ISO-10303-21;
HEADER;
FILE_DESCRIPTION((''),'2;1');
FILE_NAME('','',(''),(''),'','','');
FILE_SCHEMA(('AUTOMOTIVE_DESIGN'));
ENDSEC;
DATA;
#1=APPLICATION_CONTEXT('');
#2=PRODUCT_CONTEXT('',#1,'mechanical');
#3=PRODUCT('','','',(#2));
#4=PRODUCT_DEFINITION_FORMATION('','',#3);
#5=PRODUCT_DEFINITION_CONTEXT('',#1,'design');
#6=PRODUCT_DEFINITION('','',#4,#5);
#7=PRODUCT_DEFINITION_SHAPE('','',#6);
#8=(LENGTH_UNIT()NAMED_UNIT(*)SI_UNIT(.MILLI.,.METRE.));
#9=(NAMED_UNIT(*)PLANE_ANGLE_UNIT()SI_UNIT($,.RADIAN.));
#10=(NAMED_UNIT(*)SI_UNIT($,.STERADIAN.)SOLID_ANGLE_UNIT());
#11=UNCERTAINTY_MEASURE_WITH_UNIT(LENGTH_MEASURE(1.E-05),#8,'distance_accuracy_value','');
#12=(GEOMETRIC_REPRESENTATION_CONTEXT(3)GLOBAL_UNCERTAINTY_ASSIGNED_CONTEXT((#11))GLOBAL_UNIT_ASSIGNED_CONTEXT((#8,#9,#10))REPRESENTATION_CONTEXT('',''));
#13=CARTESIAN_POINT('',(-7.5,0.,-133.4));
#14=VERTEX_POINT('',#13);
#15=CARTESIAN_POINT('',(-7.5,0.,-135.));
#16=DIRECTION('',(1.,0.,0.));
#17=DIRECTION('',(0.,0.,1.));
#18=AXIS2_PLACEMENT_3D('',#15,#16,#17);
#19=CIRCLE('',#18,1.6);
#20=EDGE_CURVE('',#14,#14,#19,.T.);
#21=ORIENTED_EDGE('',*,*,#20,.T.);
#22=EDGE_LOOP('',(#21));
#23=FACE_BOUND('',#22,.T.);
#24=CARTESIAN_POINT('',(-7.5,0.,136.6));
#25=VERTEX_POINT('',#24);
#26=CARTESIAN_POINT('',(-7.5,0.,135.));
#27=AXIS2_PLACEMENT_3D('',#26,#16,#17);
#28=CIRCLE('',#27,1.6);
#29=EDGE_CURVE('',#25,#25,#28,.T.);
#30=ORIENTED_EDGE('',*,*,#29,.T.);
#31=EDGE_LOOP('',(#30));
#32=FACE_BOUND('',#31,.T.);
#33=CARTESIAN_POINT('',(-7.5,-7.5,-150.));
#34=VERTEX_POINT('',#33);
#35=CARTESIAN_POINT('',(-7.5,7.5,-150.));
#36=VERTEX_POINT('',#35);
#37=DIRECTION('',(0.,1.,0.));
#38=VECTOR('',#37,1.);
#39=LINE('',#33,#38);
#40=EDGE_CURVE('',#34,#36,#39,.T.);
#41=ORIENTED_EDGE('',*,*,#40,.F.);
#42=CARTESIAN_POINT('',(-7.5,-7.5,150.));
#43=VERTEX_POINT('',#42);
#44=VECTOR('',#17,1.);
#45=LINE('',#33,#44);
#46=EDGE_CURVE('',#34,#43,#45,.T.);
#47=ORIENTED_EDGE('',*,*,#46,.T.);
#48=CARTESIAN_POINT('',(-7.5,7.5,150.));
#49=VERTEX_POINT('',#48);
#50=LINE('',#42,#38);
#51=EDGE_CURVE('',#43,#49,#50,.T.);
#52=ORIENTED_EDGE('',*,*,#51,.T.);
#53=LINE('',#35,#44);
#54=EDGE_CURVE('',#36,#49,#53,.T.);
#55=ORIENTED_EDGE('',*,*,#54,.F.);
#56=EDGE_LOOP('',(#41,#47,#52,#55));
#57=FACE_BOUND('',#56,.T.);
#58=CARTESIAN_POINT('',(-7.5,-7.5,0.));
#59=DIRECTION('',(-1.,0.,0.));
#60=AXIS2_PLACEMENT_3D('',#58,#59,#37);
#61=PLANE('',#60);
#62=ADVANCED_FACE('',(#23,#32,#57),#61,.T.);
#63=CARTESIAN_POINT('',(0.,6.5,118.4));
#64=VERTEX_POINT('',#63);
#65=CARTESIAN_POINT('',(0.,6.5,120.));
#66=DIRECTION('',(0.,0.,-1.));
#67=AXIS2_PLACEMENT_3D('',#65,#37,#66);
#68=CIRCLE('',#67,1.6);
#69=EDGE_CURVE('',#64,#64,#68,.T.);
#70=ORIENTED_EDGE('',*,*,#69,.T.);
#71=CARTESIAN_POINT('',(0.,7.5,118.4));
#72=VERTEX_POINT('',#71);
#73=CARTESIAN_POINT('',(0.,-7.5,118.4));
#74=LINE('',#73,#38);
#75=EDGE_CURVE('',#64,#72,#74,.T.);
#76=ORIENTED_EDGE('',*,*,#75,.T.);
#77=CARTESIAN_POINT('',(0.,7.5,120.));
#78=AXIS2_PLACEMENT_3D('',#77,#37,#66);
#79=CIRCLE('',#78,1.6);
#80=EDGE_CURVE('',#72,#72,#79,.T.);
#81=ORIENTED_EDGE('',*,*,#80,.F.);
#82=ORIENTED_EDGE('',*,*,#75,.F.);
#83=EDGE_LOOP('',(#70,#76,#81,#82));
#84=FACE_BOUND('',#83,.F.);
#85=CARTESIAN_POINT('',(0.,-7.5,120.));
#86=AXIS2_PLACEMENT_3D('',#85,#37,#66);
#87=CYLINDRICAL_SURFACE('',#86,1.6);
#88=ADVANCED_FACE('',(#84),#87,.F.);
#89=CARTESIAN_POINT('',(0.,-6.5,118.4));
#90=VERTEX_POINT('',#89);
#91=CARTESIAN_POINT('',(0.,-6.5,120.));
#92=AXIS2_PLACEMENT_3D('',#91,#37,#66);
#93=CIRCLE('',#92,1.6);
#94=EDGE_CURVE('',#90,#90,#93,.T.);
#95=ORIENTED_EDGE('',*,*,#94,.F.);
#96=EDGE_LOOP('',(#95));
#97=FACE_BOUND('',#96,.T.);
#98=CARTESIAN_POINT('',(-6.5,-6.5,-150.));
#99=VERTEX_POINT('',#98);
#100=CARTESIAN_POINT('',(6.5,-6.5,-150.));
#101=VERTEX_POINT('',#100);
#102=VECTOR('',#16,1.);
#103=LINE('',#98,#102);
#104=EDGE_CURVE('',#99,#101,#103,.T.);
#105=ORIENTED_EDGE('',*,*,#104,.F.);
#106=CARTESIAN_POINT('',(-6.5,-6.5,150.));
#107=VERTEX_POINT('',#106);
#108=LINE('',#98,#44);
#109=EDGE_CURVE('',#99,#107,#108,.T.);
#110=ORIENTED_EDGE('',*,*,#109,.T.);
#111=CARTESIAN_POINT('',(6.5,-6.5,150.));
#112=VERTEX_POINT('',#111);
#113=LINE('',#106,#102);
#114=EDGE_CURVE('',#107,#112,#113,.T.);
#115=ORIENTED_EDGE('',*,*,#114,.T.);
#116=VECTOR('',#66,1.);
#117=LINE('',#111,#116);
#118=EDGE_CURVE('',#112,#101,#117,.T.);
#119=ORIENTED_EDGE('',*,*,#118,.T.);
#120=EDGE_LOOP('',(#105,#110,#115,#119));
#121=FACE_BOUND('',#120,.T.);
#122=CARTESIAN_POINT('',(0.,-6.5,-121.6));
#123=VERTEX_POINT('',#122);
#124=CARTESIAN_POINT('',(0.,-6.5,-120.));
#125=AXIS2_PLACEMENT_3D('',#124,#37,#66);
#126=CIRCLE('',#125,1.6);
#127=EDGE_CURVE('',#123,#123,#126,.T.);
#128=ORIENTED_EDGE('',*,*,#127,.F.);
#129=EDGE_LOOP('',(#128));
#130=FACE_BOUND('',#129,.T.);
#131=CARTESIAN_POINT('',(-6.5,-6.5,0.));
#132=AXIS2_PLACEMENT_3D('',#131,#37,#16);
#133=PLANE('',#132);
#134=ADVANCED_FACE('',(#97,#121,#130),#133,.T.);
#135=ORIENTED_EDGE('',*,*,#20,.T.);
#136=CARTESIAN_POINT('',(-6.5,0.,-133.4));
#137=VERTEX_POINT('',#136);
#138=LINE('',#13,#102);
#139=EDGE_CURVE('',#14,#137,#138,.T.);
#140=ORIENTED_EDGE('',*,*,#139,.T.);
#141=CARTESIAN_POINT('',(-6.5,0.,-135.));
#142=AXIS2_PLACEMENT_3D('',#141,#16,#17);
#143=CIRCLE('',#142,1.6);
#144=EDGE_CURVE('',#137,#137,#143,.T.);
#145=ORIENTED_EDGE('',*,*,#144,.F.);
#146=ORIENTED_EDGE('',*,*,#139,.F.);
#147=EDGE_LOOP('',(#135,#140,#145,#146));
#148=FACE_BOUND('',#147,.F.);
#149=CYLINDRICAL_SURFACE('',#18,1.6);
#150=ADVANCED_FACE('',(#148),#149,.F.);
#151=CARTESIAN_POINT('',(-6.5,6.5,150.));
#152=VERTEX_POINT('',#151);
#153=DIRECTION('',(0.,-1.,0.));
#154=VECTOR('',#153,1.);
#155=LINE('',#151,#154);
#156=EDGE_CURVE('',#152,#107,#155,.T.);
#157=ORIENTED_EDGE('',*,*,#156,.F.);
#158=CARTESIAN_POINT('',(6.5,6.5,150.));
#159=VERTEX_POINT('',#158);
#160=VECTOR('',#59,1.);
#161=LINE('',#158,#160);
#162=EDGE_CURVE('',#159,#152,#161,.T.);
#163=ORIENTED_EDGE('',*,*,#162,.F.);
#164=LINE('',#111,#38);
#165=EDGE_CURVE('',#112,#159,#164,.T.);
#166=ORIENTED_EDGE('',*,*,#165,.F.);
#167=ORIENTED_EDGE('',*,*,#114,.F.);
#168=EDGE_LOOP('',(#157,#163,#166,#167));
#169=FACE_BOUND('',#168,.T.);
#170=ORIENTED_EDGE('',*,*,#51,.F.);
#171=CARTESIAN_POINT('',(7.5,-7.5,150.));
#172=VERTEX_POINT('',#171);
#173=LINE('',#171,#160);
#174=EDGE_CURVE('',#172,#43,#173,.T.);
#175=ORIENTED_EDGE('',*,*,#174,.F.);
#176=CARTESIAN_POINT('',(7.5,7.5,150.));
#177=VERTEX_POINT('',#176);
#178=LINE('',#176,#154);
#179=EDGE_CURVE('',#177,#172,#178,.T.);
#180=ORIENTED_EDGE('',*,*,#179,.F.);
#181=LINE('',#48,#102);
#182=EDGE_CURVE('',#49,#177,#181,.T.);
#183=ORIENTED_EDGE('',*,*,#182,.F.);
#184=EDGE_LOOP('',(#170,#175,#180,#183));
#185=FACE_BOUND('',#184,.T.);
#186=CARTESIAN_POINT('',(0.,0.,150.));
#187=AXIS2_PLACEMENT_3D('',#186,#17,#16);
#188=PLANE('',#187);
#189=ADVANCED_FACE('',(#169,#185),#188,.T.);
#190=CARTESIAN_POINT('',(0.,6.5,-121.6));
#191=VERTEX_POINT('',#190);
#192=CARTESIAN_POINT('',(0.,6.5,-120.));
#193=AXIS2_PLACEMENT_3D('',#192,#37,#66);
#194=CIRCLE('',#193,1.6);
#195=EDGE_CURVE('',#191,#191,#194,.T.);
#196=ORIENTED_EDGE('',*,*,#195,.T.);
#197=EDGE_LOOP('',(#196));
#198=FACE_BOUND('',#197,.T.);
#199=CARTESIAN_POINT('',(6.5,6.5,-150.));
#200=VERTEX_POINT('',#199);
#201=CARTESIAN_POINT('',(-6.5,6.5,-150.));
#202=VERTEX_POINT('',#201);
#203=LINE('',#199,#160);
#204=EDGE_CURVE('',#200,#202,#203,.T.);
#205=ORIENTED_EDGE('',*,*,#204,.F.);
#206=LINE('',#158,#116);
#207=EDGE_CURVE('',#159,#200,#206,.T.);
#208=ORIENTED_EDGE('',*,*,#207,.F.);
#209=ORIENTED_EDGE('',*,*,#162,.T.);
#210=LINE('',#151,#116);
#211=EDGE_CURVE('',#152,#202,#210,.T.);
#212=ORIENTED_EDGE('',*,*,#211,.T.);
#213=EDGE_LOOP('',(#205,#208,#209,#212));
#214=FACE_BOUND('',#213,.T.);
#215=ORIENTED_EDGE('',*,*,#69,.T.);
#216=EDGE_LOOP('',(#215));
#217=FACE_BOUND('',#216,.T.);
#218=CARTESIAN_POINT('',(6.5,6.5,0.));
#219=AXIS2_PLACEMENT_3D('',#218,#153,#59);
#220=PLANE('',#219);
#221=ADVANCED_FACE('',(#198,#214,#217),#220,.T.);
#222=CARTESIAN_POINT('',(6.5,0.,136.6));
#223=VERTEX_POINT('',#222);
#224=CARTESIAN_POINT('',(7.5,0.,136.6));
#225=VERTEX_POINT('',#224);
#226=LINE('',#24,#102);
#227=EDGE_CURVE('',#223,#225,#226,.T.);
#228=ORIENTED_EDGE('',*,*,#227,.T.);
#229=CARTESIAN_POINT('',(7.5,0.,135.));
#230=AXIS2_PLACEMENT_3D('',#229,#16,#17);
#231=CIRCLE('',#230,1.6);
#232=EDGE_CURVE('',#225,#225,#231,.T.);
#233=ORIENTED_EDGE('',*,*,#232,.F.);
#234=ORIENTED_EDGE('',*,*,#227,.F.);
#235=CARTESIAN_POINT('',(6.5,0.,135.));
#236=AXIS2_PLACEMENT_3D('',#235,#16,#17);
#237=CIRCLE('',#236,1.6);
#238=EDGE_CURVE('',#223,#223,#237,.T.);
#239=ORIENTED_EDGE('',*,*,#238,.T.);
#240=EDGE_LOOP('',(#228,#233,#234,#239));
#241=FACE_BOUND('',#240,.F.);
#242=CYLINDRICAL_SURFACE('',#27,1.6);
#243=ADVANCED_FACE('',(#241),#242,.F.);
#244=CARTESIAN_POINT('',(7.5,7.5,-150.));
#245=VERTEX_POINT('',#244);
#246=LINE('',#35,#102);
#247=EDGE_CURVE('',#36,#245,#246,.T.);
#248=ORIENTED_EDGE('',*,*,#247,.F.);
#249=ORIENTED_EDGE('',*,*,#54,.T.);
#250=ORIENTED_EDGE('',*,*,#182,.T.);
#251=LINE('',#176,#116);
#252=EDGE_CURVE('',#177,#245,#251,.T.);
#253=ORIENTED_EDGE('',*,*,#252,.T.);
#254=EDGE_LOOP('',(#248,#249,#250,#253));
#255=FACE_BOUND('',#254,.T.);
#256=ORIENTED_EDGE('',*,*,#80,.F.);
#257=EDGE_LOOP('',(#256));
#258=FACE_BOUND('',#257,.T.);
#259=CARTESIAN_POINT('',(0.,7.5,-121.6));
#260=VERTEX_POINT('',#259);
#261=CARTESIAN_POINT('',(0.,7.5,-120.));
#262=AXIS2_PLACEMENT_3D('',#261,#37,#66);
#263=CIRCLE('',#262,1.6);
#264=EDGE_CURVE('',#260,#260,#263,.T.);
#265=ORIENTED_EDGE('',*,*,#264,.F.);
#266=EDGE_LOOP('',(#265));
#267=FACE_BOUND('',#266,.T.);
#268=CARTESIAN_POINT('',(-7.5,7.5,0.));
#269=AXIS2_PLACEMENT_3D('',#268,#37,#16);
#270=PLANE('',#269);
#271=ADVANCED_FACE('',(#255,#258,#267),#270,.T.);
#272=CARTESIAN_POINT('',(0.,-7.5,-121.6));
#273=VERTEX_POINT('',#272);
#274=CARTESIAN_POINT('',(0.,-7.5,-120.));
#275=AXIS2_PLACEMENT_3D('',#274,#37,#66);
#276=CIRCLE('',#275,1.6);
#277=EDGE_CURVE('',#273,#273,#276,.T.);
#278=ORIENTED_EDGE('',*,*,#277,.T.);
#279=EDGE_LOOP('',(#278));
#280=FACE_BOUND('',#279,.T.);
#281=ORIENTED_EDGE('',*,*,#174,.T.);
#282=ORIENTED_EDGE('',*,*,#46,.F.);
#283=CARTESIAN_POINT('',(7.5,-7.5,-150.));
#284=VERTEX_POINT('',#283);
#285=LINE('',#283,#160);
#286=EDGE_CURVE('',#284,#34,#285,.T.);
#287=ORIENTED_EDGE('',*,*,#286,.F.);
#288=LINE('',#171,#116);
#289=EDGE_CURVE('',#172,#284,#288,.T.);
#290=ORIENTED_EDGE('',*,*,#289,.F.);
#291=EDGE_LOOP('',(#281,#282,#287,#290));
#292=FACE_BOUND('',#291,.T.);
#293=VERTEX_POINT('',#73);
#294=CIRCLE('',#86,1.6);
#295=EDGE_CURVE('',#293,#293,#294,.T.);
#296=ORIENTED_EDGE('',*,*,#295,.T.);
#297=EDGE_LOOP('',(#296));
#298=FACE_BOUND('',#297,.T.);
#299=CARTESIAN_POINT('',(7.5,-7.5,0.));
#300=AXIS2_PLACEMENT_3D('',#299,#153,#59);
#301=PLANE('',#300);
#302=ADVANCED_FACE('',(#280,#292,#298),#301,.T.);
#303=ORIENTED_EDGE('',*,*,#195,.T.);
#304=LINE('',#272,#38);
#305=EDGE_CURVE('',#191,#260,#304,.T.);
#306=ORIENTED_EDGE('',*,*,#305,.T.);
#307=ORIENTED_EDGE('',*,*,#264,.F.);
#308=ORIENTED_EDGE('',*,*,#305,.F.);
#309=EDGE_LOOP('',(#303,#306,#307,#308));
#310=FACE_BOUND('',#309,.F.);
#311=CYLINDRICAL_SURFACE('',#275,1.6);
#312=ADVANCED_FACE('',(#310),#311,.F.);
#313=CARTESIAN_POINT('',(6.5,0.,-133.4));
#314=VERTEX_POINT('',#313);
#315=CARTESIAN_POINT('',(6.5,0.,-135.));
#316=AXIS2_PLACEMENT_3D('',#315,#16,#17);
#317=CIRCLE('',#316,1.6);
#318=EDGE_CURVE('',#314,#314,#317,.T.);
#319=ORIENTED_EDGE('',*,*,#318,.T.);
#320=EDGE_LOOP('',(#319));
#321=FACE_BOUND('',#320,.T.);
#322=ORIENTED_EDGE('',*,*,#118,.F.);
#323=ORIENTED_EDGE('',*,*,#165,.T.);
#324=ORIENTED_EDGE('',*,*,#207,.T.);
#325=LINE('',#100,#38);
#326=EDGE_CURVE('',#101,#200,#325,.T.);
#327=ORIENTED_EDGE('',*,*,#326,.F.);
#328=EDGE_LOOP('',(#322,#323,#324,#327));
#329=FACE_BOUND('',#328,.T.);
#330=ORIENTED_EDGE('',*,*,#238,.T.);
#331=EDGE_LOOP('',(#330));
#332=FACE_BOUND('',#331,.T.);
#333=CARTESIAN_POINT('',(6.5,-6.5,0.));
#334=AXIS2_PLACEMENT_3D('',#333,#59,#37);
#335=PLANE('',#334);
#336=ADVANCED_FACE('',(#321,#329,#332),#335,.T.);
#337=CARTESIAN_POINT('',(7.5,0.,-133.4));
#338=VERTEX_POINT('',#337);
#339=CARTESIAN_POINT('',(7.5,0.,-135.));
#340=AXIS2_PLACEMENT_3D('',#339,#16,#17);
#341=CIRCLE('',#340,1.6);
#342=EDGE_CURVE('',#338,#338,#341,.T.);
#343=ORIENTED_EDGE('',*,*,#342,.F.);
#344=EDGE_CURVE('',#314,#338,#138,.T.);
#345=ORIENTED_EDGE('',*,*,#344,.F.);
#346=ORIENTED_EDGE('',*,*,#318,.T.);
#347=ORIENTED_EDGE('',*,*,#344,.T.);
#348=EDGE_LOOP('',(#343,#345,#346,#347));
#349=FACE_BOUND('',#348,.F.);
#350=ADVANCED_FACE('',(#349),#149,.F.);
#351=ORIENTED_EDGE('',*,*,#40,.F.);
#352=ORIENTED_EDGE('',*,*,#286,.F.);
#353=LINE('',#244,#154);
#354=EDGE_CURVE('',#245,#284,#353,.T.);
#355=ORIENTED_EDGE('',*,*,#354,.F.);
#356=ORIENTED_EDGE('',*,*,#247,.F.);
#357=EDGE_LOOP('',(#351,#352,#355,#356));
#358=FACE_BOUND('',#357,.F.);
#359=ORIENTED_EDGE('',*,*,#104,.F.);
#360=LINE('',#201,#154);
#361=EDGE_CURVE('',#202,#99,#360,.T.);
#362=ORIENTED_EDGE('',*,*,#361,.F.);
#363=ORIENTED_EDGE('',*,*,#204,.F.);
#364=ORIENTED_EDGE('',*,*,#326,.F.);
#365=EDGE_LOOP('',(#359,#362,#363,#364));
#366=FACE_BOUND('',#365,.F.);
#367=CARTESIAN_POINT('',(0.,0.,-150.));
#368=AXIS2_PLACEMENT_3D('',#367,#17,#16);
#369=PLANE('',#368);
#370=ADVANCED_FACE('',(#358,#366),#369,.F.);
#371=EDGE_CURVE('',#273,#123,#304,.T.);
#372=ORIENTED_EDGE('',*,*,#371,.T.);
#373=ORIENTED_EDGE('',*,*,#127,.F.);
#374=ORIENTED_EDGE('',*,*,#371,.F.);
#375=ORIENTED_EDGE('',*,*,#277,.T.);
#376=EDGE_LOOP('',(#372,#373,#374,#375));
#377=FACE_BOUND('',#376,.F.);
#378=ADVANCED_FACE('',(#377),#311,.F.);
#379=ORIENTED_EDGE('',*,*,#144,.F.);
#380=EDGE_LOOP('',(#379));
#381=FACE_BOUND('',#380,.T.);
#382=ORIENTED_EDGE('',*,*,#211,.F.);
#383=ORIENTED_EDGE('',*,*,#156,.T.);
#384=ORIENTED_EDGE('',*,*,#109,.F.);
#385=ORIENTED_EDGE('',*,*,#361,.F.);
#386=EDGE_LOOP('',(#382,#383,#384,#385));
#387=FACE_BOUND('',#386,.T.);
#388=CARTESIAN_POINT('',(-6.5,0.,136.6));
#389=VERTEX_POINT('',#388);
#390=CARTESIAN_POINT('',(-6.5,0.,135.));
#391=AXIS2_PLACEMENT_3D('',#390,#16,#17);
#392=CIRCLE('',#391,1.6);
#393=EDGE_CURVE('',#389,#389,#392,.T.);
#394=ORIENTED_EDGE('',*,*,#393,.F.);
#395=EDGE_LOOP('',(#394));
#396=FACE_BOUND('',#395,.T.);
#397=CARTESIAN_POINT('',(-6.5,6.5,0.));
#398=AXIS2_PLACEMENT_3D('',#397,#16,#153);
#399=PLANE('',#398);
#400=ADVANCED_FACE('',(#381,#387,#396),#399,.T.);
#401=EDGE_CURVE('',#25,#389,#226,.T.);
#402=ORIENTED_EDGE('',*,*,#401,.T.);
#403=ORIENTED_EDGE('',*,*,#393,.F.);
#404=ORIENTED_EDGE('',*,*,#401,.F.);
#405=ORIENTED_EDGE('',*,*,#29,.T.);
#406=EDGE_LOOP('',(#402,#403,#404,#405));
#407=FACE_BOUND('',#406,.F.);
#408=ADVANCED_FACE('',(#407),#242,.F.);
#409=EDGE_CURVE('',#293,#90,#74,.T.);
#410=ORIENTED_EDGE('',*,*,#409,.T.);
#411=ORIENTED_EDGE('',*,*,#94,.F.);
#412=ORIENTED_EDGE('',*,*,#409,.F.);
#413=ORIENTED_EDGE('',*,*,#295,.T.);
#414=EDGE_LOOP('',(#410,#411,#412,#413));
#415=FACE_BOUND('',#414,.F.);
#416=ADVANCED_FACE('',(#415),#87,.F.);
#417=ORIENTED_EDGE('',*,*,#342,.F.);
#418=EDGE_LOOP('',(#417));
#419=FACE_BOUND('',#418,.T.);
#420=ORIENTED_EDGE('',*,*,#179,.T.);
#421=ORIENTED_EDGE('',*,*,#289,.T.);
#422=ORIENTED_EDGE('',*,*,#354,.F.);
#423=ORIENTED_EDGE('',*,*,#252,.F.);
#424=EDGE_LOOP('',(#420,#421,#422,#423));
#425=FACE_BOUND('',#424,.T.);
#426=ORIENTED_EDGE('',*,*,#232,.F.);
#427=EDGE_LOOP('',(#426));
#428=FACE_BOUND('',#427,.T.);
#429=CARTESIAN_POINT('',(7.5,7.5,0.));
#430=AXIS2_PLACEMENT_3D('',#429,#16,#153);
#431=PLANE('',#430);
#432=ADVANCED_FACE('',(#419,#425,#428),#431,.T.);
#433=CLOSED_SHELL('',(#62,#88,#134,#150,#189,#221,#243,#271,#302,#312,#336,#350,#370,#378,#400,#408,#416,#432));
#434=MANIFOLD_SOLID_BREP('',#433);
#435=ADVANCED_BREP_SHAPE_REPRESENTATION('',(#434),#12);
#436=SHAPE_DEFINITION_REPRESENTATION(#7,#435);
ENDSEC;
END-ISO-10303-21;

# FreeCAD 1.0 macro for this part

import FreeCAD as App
import Part
import Sketcher
from FreeCAD import Vector
Q = App.Units.Quantity

doc = App.newDocument("Part")
params = doc.addObject("Spreadsheet::Sheet", "Params")
for row, (alias, value) in enumerate([
    ("sketch1_width", "15 mm"),
    ("sketch1_width2", "13 mm"),
    ("pad1_length", "300 mm"),
    ("sketch2_diameter", "3.2 mm"),
    ("hole_diameter", "3.2 mm"),
    ("sketch3_diameter", "3.2 mm"),
    ("hole2_diameter", "3.2 mm"),
], start=1):
    params.set(f"A{row}", alias)
    params.set(f"B{row}", "=" + value)
    params.setAlias(f"B{row}", alias)

body = doc.addObject("PartDesign::Body", "Body")

sketch1 = body.newObject("Sketcher::SketchObject", "Sketch")
sketch1.AttachmentSupport = (doc.getObject("XY_Plane"), [""])
sketch1.MapMode = "FlatFace"
sketch1.addGeometry([
    Part.LineSegment(Vector(8, 8, 0), Vector(-8, 8, 0)),
    Part.LineSegment(Vector(-8, 8, 0), Vector(-8, -8, 0)),
    Part.LineSegment(Vector(-8, -8, 0), Vector(8, -8, 0)),
    Part.LineSegment(Vector(8, -8, 0), Vector(8, 8, 0)),
    Part.LineSegment(Vector(6, -6, 0), Vector(-6, -6, 0)),
    Part.LineSegment(Vector(-6, -6, 0), Vector(-6, 6, 0)),
    Part.LineSegment(Vector(-6, 6, 0), Vector(6, 6, 0)),
    Part.LineSegment(Vector(6, 6, 0), Vector(6, -6, 0)),
], False)
sketch1.addConstraint([
    Sketcher.Constraint("Coincident", 0, 2, 1, 1),
    Sketcher.Constraint("Coincident", 1, 2, 2, 1),
    Sketcher.Constraint("Coincident", 2, 2, 3, 1),
    Sketcher.Constraint("Coincident", 3, 2, 0, 1),
    Sketcher.Constraint("Coincident", 4, 2, 5, 1),
    Sketcher.Constraint("Coincident", 5, 2, 6, 1),
    Sketcher.Constraint("Coincident", 6, 2, 7, 1),
    Sketcher.Constraint("Coincident", 7, 2, 4, 1),
    Sketcher.Constraint("Horizontal", 0),
    Sketcher.Constraint("Vertical", 1),
    Sketcher.Constraint("Horizontal", 2),
    Sketcher.Constraint("Vertical", 3),
    Sketcher.Constraint("Horizontal", 4),
    Sketcher.Constraint("Vertical", 5),
    Sketcher.Constraint("Horizontal", 6),
    Sketcher.Constraint("Vertical", 7),
    Sketcher.Constraint("Symmetric", 0, 2, 2, 2, -1, 1),
    Sketcher.Constraint("Symmetric", 4, 2, 6, 2, -1, 1),
    Sketcher.Constraint("Equal", 2, 1),
    Sketcher.Constraint("Equal", 6, 5),
    Sketcher.Constraint("DistanceX", 0, 2, 0, 1, Q("15 mm")),
    Sketcher.Constraint("DistanceX", 4, 2, 4, 1, Q("13 mm")),
])
sketch1.setExpression("Constraints[20]", "Params.sketch1_width")
sketch1.setExpression("Constraints[21]", "Params.sketch1_width2")
pad1 = body.newObject("PartDesign::Pad", "Pad")
pad1.Profile = sketch1
pad1.setExpression("Length", "Params.pad1_length")
pad1.Midplane = True

sketch2 = body.newObject("Sketcher::SketchObject", "Sketch001")
sketch2.AttachmentSupport = (doc.getObject("XZ_Plane"), [""])
sketch2.MapMode = "FlatFace"
sketch2.AttachmentOffset = App.Placement(Vector(0, 0, 7.5), App.Rotation())
sketch2.addGeometry([
    Part.Circle(Vector(0, 120, 0), Vector(0, 0, 1), 1.6),
    Part.Circle(Vector(0, -120, 0), Vector(0, 0, 1), 1.6),
], False)
sketch2.addConstraint([
    Sketcher.Constraint("Equal", 0, 1),
    Sketcher.Constraint("Symmetric", 0, 3, 1, 3, -1, 1),
    Sketcher.Constraint("PointOnObject", 0, 3, -2),
    Sketcher.Constraint("Diameter", 0, Q("3.2 mm")),
    Sketcher.Constraint("DistanceY", -1, 1, 0, 3, Q("120 mm")),
])
sketch2.setExpression("Constraints[3]", "Params.sketch2_diameter")
doc.recompute()
hole = body.newObject("PartDesign::Hole", "Hole")
hole.Profile = sketch2
hole.ThreadType = "None"
hole.setExpression("Diameter", "Params.hole_diameter")
hole.DepthType = "ThroughAll"

sketch3 = body.newObject("Sketcher::SketchObject", "Sketch002")
sketch3.AttachmentSupport = (doc.getObject("YZ_Plane"), [""])
sketch3.MapMode = "FlatFace"
sketch3.AttachmentOffset = App.Placement(Vector(0, 0, -7.5), App.Rotation())
sketch3.addGeometry([
    Part.Circle(Vector(0, -135, 0), Vector(0, 0, 1), 1.6),
    Part.Circle(Vector(0, 135, 0), Vector(0, 0, 1), 1.6),
], False)
sketch3.addConstraint([
    Sketcher.Constraint("Equal", 0, 1),
    Sketcher.Constraint("Symmetric", 0, 3, 1, 3, -1, 1),
    Sketcher.Constraint("PointOnObject", 0, 3, -2),
    Sketcher.Constraint("Diameter", 0, Q("3.2 mm")),
    Sketcher.Constraint("DistanceY", 0, 3, -1, 1, Q("135 mm")),
])
sketch3.setExpression("Constraints[3]", "Params.sketch3_diameter")
doc.recompute()
hole2 = body.newObject("PartDesign::Hole", "Hole001")
hole2.Profile = sketch3
hole2.ThreadType = "None"
hole2.setExpression("Diameter", "Params.hole2_diameter")
hole2.DepthType = "ThroughAll"
hole2.Reversed = True

doc.recompute()
